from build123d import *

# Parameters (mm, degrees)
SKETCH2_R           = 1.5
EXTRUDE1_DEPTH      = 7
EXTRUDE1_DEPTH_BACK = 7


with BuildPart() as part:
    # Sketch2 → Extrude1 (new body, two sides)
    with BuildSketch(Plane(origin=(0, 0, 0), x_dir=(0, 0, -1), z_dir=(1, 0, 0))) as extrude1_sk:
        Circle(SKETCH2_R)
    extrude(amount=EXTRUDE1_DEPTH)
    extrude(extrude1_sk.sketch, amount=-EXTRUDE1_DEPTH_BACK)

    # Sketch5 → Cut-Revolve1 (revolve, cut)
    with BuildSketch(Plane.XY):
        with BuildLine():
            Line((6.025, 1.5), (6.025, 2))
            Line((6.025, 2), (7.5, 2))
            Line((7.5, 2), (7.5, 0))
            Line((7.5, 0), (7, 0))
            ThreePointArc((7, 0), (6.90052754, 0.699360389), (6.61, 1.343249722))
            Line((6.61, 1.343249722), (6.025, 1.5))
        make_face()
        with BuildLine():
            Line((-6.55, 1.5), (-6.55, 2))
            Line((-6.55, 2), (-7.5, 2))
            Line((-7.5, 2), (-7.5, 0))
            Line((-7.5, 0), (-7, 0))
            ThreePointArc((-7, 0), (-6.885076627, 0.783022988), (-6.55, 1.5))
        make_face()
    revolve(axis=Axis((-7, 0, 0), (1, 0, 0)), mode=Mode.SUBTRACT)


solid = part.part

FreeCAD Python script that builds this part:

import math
import FreeCAD as App
import Part
import Sketcher

V = App.Vector
Q = App.Units.Quantity

doc = App.newDocument("Part")
body = doc.addObject("PartDesign::Body", "Body")

sketch1 = body.newObject("Sketcher::SketchObject", "Sketch")
sketch1.AttachmentSupport = (doc.getObject("YZ_Plane"), [""])
sketch1.MapMode = "FlatFace"
sketch1.addGeometry(Part.Circle(V(0, 0, 0), V(0, 0, 1), 1.5), False)
sketch1.addConstraint([
    Sketcher.Constraint("Coincident", 0, 3, -1, 1),
    Sketcher.Constraint("Diameter", 0, 3.0),
])
pad1 = body.newObject("PartDesign::Pad", "Pad")
pad1.Profile = sketch1
pad1.Type = "TwoLengths"
pad1.Length = 7
pad1.Length2 = 7

sketch2 = body.newObject("Sketcher::SketchObject", "Sketch001")
sketch2.AttachmentSupport = (doc.getObject("XY_Plane"), [""])
sketch2.MapMode = "FlatFace"
sketch2.addGeometry([
    Part.LineSegment(V(6, 2, 0), V(6, 1.5, 0)),
    Part.LineSegment(V(6, 1.5, 0), V(6.6, 1.3, 0)),
    Part.ArcOfCircle(Part.Circle(V(4.5, 0, 0), V(0, 0, 1), 2.5), math.radians(0), math.radians(32)),
    Part.LineSegment(V(7, 0, 0), V(7.5, 0, 0)),
    Part.LineSegment(V(7.5, 0, 0), V(7.5, 2, 0)),
    Part.LineSegment(V(7.5, 2, 0), V(6, 2, 0)),
    Part.LineSegment(V(-6.5, 1.5, 0), V(-6.5, 2, 0)),
    Part.LineSegment(V(-6.5, 2, 0), V(-7.5, 2, 0)),
    Part.LineSegment(V(-7.5, 2, 0), V(-7.5, 0, 0)),
    Part.LineSegment(V(-7.5, 0, 0), V(-7, 0, 0)),
    Part.ArcOfCircle(Part.Circle(V(-4.3, 0, 0), V(0, 0, 1), 2.7), math.radians(147), math.radians(180)),
], False)
sketch2.addConstraint([
    Sketcher.Constraint("Coincident", 0, 2, 1, 1),
    Sketcher.Constraint("Coincident", 1, 2, 2, 2),
    Sketcher.Constraint("Coincident", 2, 1, 3, 1),
    Sketcher.Constraint("Coincident", 3, 2, 4, 1),
    Sketcher.Constraint("Coincident", 4, 2, 5, 1),
    Sketcher.Constraint("Coincident", 5, 2, 0, 1),
    Sketcher.Constraint("Coincident", 6, 2, 7, 1),
    Sketcher.Constraint("Coincident", 7, 2, 8, 1),
    Sketcher.Constraint("Coincident", 8, 2, 9, 1),
    Sketcher.Constraint("Coincident", 9, 2, 10, 2),
    Sketcher.Constraint("Coincident", 10, 1, 6, 1),
    Sketcher.Constraint("Vertical", 0),
    Sketcher.Constraint("Horizontal", 3),
    Sketcher.Constraint("Vertical", 4),
    Sketcher.Constraint("Horizontal", 5),
    Sketcher.Constraint("Vertical", 6),
    Sketcher.Constraint("Horizontal", 7),
    Sketcher.Constraint("Vertical", 8),
    Sketcher.Constraint("Horizontal", 9),
    Sketcher.Constraint("Symmetric", 3, 2, 8, 2, -1, 1),
    Sketcher.Constraint("Symmetric", 2, 1, 9, 2, -2),
    Sketcher.Constraint("PointOnObject", 2, 3, -1),
    Sketcher.Constraint("PointOnObject", 10, 3, -1),
    Sketcher.Constraint("Horizontal", 5, 2, 6, 2),
    Sketcher.Constraint("Horizontal", 0, 2, 10, 1),
    Sketcher.Constraint("Equal", 9, 0),
    Sketcher.Constraint("DistanceY", 4, 1, 4, 2, 2.0),
    Sketcher.Constraint("Angle", 1, Q("-15 deg")),
    Sketcher.Constraint("DistanceX", 3, 1, 3, 2, 0.5),
    Sketcher.Constraint("DistanceX", -1, 1, 2, 1, 7.0),
    Sketcher.Constraint("Radius", 10, 2.725),
    Sketcher.Constraint("DistanceX", 10, 3, 0, 2, 10.3),
    Sketcher.Constraint("DistanceX", -1, 1, 1, 2, 6.61),
])
groove = body.newObject("PartDesign::Groove", "Groove")
groove.Profile = sketch2
groove.ReferenceAxis = (sketch2, ["H_Axis"])
groove.Angle = 360

doc.recompute()
